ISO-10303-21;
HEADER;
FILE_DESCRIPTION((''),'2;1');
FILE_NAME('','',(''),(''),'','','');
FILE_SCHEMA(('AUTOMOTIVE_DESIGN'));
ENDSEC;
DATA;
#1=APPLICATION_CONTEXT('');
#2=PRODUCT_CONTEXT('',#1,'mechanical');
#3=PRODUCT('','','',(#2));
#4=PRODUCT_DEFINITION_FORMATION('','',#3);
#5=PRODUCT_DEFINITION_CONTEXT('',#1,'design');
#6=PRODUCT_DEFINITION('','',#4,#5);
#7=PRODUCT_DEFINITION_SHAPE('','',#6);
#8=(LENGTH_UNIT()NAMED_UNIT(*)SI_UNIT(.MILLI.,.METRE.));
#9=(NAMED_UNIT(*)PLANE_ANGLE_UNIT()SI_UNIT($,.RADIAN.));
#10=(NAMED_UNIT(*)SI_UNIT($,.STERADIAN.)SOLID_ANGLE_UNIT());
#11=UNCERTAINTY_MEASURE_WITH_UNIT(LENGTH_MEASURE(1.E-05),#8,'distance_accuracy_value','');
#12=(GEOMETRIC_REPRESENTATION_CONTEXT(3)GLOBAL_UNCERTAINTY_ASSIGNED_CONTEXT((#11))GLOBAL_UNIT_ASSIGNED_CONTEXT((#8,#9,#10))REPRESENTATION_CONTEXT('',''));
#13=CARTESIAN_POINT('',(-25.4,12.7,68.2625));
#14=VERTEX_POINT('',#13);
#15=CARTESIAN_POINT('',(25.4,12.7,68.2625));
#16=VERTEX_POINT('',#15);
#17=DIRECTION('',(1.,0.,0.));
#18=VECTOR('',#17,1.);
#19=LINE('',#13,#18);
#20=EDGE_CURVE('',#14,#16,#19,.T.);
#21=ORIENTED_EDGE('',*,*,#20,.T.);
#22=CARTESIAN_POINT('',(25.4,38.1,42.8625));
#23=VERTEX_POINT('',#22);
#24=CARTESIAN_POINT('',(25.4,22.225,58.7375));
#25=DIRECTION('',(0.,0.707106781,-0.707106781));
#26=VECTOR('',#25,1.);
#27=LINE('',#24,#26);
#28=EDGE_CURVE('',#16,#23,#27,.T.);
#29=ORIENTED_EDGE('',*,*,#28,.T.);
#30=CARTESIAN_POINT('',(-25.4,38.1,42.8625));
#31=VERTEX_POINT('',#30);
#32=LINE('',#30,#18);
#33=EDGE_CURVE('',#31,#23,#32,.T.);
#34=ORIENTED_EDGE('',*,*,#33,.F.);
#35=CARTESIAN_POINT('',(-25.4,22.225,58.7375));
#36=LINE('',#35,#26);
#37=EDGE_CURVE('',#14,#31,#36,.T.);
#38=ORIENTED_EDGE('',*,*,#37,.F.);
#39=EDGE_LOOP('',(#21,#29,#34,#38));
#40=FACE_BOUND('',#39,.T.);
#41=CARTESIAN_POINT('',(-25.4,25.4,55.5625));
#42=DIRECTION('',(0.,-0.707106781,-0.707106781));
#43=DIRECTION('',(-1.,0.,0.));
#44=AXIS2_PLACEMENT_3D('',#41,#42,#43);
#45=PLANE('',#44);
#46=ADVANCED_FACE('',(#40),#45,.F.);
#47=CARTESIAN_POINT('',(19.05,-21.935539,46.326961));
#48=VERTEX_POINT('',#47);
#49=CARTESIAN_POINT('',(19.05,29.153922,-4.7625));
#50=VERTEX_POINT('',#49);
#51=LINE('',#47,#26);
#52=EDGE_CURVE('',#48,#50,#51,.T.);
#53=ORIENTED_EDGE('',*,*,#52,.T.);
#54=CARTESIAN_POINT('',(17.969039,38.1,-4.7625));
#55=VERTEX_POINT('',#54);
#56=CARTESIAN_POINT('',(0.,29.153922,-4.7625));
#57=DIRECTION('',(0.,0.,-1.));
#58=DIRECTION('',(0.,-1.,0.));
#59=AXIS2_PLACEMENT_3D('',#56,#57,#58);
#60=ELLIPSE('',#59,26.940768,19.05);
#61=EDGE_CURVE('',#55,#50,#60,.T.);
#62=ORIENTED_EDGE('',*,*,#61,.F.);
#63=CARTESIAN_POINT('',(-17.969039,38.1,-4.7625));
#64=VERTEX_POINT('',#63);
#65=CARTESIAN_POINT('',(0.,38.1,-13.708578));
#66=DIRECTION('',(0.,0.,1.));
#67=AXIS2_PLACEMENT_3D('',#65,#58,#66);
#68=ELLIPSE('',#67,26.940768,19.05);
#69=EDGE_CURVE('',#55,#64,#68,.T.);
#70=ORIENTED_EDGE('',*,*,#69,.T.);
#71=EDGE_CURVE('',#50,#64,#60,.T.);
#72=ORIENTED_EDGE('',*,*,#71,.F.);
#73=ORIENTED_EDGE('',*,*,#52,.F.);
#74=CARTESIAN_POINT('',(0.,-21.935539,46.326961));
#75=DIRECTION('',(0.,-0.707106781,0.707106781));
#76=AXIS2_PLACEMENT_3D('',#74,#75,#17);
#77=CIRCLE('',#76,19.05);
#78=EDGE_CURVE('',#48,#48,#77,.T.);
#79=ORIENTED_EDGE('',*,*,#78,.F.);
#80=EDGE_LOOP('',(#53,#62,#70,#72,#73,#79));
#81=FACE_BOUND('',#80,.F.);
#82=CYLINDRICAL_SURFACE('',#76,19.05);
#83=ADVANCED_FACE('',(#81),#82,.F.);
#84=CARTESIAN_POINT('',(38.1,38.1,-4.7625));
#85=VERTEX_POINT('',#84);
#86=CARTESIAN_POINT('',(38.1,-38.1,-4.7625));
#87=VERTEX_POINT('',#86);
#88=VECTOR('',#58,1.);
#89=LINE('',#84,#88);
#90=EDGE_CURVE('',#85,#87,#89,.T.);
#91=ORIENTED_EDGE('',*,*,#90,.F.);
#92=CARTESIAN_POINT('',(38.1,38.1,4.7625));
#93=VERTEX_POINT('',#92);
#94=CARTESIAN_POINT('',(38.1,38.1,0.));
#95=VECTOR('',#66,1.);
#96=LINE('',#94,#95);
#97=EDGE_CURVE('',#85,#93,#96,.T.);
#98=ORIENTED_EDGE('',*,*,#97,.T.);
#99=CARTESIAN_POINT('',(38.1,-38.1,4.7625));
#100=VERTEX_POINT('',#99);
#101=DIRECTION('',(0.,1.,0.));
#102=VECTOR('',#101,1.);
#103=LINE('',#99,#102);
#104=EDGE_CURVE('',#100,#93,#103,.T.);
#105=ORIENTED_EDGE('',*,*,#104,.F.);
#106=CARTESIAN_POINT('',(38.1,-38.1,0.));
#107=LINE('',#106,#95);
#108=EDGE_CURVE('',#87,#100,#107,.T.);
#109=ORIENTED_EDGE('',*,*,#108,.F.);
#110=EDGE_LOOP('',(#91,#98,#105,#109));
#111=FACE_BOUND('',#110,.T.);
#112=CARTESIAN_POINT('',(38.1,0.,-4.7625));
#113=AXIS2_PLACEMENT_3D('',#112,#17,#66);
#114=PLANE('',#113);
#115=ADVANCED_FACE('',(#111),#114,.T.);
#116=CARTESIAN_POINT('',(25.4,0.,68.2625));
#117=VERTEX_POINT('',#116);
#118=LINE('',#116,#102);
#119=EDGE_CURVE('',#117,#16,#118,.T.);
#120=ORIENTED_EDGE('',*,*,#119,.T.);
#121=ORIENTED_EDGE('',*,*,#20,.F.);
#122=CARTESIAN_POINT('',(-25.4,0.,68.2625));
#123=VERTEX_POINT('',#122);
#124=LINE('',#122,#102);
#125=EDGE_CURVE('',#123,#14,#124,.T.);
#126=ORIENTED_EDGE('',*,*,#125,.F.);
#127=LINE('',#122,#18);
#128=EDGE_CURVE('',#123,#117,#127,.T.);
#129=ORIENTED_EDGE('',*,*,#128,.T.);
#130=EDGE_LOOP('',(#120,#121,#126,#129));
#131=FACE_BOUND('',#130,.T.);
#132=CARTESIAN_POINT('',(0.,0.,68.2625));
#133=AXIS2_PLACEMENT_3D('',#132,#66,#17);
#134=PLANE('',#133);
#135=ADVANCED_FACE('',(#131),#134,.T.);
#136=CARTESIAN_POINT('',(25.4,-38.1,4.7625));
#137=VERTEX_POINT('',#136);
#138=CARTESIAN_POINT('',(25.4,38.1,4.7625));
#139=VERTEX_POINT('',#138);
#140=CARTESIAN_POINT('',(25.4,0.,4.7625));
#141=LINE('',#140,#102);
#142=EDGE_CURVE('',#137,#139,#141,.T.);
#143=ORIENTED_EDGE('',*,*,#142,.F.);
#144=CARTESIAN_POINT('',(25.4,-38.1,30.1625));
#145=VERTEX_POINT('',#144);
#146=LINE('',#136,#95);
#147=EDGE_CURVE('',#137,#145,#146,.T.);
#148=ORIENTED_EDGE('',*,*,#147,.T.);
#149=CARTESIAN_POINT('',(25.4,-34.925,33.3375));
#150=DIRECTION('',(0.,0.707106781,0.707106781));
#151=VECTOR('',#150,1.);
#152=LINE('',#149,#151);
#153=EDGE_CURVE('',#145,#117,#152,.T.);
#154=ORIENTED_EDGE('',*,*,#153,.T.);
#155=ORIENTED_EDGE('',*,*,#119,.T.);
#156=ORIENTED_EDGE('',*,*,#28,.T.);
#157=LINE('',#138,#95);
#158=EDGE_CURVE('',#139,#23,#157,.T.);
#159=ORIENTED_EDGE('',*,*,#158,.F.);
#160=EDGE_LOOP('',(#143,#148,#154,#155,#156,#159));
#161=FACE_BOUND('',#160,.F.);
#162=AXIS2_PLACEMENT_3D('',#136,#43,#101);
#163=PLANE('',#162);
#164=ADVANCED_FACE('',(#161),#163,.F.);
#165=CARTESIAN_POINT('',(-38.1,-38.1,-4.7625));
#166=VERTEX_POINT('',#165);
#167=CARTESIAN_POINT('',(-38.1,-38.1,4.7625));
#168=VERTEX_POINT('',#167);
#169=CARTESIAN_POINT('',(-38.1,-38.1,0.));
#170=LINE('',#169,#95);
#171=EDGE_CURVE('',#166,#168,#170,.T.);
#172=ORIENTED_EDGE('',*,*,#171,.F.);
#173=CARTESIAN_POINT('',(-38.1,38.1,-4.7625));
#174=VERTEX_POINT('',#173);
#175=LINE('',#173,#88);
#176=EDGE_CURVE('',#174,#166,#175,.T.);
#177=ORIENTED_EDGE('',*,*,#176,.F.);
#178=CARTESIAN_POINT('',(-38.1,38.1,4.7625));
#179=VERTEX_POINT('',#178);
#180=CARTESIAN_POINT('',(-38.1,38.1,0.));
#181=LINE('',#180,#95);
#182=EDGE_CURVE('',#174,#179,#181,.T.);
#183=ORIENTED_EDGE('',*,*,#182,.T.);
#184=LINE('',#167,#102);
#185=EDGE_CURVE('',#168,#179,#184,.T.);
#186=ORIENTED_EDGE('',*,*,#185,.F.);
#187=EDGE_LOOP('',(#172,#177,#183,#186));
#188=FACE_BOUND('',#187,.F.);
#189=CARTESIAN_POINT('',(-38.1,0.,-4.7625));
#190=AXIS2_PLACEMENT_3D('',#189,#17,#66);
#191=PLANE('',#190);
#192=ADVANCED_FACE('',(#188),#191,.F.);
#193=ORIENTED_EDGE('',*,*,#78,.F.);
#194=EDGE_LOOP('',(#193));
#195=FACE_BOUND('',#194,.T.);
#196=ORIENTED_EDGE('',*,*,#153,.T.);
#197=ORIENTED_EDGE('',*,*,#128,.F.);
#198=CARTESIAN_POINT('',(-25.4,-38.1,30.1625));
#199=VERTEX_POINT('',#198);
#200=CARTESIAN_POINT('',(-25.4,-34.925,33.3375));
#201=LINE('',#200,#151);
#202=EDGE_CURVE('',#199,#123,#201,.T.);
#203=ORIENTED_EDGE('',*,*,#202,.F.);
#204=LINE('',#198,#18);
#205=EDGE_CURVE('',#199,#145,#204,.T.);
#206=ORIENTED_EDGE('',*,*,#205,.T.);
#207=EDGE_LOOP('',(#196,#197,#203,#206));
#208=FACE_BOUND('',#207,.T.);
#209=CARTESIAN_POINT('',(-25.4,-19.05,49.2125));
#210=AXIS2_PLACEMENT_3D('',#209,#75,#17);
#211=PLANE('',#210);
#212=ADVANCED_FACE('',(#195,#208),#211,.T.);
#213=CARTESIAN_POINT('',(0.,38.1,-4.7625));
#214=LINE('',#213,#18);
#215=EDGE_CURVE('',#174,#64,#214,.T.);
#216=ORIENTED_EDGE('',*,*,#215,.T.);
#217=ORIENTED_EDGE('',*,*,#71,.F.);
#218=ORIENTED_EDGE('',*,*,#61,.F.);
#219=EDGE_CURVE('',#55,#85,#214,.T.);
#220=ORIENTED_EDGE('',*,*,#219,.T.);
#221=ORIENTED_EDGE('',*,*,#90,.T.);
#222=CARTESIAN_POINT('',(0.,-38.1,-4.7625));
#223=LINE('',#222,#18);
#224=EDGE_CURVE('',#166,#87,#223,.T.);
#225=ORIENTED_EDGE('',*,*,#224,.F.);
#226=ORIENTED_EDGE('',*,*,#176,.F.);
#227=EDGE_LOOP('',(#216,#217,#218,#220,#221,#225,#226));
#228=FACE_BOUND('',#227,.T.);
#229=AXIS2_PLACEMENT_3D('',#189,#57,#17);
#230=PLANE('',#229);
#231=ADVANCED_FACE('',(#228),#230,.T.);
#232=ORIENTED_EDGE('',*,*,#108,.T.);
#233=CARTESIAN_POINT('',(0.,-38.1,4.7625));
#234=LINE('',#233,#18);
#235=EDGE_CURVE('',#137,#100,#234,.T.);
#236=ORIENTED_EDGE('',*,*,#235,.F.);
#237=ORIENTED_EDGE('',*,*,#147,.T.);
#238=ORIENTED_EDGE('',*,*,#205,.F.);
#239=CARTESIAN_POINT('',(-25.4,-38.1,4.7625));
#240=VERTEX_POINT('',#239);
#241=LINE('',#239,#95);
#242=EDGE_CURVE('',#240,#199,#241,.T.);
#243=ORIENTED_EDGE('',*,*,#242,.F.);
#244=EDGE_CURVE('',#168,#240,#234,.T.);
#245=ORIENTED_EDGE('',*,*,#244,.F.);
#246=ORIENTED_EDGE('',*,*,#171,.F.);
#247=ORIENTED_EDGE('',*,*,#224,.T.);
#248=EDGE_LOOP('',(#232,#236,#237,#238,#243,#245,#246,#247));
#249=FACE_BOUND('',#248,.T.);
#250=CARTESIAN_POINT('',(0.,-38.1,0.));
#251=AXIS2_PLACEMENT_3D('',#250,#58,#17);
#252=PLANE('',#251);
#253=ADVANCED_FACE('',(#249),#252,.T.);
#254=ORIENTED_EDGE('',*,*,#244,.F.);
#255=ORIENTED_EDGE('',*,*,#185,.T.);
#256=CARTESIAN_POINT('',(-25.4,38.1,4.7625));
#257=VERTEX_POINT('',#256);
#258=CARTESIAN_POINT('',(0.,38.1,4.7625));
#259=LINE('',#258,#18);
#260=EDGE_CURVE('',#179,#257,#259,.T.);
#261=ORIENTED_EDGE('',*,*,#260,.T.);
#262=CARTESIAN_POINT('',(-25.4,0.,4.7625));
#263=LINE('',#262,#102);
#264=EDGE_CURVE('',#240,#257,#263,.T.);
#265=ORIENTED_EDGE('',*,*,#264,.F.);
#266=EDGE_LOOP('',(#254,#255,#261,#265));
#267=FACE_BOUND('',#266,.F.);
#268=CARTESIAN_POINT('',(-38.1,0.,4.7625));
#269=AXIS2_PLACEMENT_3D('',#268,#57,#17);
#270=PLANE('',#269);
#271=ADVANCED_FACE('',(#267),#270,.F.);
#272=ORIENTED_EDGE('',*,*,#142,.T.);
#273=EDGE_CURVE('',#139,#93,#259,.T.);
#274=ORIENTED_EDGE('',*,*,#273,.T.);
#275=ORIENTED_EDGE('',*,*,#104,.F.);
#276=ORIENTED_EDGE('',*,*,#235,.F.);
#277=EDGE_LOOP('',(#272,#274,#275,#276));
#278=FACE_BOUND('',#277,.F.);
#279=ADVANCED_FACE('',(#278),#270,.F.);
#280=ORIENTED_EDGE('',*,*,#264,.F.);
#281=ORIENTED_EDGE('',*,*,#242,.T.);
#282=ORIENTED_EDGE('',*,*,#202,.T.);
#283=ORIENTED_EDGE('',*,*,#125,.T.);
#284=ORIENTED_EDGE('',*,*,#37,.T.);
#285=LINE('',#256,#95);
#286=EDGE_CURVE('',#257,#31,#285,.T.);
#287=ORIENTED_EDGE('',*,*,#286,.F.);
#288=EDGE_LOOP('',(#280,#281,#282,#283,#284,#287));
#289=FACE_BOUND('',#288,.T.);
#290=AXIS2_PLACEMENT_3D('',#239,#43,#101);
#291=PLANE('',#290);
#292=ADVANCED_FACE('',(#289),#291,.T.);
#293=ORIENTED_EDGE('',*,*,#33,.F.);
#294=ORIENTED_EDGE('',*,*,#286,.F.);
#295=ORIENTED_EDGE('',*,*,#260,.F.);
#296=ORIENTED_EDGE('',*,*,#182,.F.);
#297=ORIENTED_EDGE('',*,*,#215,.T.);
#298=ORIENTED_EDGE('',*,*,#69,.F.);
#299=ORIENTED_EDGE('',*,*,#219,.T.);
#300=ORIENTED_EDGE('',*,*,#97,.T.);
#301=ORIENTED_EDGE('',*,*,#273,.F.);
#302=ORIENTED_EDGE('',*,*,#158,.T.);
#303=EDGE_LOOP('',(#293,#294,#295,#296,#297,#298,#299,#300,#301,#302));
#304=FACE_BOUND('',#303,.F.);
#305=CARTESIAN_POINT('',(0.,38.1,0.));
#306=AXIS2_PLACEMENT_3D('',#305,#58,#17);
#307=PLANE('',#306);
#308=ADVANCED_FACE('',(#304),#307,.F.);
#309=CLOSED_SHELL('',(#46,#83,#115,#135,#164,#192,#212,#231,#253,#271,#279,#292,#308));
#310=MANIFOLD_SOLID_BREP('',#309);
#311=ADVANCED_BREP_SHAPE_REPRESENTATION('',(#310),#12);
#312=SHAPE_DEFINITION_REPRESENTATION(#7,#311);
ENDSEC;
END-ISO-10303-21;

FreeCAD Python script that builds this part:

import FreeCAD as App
import Part
import Sketcher
Q = App.Units.Quantity


def edges_at(feature, points):
    """Names of the edges that pass closest to the given points."""
    edges = feature.Shape.Edges
    near = lambda p: min(range(len(edges)), key=lambda i: edges[i].distToShape(Part.Vertex(*p))[0])
    return sorted({f"Edge{near(p) + 1}" for p in points})


def add_polygon(sketch, points):
    """Adds a closed chain of lines whose ends are joined by coincident constraints."""
    first, n = sketch.GeometryCount, len(points)
    for a, b in zip(points, points[1:] + points[:1]):
        sketch.addGeometry(Part.LineSegment(App.Vector(*a, 0), App.Vector(*b, 0)), False)
    for i in range(n):
        sketch.addConstraint(Sketcher.Constraint("Coincident", first + i, 2, first + (i + 1) % n, 1))

doc = App.newDocument("Part")
body = doc.addObject("PartDesign::Body", "Body")

# Sketch on XZ plane
sketch1 = body.newObject("Sketcher::SketchObject", "Sketch")
sketch1.AttachmentSupport = (doc.getObject("XZ_Plane"), [""])
sketch1.MapMode = "FlatFace"
add_polygon(sketch1, [(-38, 5), (-38, -5), (38, -5), (38, 5)])  # lines 0-3
sketch1.addConstraint([
    Sketcher.Constraint("Vertical", 0),
    Sketcher.Constraint("Horizontal", 1),
    Sketcher.Constraint("Vertical", 2),
    Sketcher.Constraint("Horizontal", 3),
    Sketcher.Constraint("Symmetric", 0, 2, 2, 2, -1, 1),
    Sketcher.Constraint("DistanceX", 1, 1, 1, 2, Q("3 in")),
    Sketcher.Constraint("DistanceY", 0, 2, 0, 1, Q("0.375 in")),
])
pad1 = body.newObject("PartDesign::Pad", "Pad")
pad1.Profile = sketch1
pad1.Length = Q("3 in")
pad1.Midplane = True

# Sketch on XY plane
sketch2 = body.newObject("Sketcher::SketchObject", "Sketch001")
sketch2.AttachmentSupport = (doc.getObject("XY_Plane"), [""])
sketch2.MapMode = "FlatFace"
sketch2.AttachmentOffset = App.Placement(App.Vector(0, 0, 0.1875 * 25.4), App.Rotation())
add_polygon(sketch2, [(-25, 38), (-25, -38), (25, -38), (25, 38)])  # lines 0-3
sketch2.addConstraint([
    Sketcher.Constraint("Vertical", 0),
    Sketcher.Constraint("Horizontal", 1),
    Sketcher.Constraint("Vertical", 2),
    Sketcher.Constraint("Horizontal", 3),
    Sketcher.Constraint("Symmetric", 0, 2, 2, 2, -1, 1),
    Sketcher.Constraint("DistanceX", 1, 1, 1, 2, Q("2 in")),
    Sketcher.Constraint("DistanceY", 0, 2, 0, 1, Q("3 in")),
])
pad2 = body.newObject("PartDesign::Pad", "Pad001")
pad2.Profile = sketch2
pad2.Length = Q("2.5 in")
doc.recompute()

chamfer = body.newObject("PartDesign::Chamfer", "Chamfer")
chamfer.Base = (pad2, edges_at(pad2, [(0, -38.1, 68.263)]))
chamfer.ChamferType = "Two distances"
chamfer.Size = Q("1.5 in")
chamfer.Size2 = Q("1.5 in")

# Sketch on an angled plane
sketch3 = body.newObject("Sketcher::SketchObject", "Sketch002")
sketch3.Placement = App.Placement(App.Vector(0, -34.13125, 34.13125), App.Rotation(App.Vector(1, 0, 0), App.Vector(0, 0.707106781, 0.707106781), App.Vector(0, -0.707106781, 0.707106781), "ZXY"))
sketch3.addGeometry(Part.Circle(App.Vector(0, 17, 0), App.Vector(0, 0, 1), 19), False)
sketch3.addConstraint([
    Sketcher.Constraint("PointOnObject", 0, 3, -2),
    Sketcher.Constraint("Diameter", 0, Q("1.5 in")),
    Sketcher.Constraint("DistanceY", -1, 1, 0, 3, 17.24734),
])
pocket1 = body.newObject("PartDesign::Pocket", "Pocket")
pocket1.Profile = sketch3
pocket1.Length = Q("7.49 in")
doc.recompute()

chamfer2 = body.newObject("PartDesign::Chamfer", "Chamfer001")
chamfer2.Base = (pocket1, edges_at(pocket1, [(0, 38.1, 68.263)]))
chamfer2.Size = Q("1 in")

doc.recompute()
